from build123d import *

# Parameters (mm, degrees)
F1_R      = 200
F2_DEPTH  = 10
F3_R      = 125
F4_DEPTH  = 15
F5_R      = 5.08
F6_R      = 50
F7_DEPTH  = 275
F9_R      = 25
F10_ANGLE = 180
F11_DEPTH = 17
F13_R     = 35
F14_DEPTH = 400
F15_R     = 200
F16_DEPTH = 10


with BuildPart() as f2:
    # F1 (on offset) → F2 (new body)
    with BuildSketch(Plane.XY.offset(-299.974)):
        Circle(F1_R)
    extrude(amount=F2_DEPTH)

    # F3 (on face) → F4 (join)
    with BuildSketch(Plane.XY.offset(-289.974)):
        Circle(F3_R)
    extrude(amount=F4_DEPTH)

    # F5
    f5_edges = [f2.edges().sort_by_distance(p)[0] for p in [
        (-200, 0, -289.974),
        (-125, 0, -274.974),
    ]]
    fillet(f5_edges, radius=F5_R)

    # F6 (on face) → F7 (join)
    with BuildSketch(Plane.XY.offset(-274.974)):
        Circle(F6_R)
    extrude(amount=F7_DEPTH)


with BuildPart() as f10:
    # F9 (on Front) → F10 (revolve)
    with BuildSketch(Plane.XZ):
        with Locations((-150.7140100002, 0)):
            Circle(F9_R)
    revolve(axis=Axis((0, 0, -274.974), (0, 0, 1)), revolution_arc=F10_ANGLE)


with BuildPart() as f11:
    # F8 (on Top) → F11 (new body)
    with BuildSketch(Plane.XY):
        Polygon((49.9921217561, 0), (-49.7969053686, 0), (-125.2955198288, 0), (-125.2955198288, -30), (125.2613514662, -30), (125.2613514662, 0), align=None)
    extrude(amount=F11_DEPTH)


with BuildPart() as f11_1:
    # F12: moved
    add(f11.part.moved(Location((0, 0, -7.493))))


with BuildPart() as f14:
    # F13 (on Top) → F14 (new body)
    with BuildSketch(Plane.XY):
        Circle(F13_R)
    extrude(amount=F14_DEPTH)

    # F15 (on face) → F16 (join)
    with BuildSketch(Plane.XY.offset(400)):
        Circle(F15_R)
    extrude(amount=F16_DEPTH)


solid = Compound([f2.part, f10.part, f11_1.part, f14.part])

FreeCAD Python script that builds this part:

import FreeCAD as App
import Part
import Sketcher
from FreeCAD import Vector


def edges_at(feature, points):
    """Names of the edges that pass closest to the given points."""
    edges = feature.Shape.Edges
    near = lambda p: min(range(len(edges)), key=lambda i: edges[i].distToShape(Part.Vertex(*p))[0])
    return sorted({f"Edge{near(p) + 1}" for p in points})


def add_polygon(sketch, points):
    """Adds a closed chain of lines whose ends are joined by coincident constraints."""
    first, n = sketch.GeometryCount, len(points)
    for a, b in zip(points, points[1:] + points[:1]):
        sketch.addGeometry(Part.LineSegment(App.Vector(*a, 0), App.Vector(*b, 0)), False)
    for i in range(n):
        sketch.addConstraint(Sketcher.Constraint("Coincident", first + i, 2, first + (i + 1) % n, 1))

doc = App.newDocument("Part")
body = doc.addObject("PartDesign::Body", "Body")

# Sketch on XY plane
sketch1 = body.newObject("Sketcher::SketchObject", "Sketch")
sketch1.AttachmentSupport = (doc.getObject("XY_Plane"), [""])
sketch1.MapMode = "FlatFace"
sketch1.AttachmentOffset = App.Placement(Vector(0, 0, -299.974), App.Rotation())
sketch1.addGeometry(Part.Circle(Vector(0, 0, 0), Vector(0, 0, 1), 200), False)
sketch1.addConstraint([
    Sketcher.Constraint("Coincident", 0, 3, -1, 1),
    Sketcher.Constraint("Diameter", 0, 400.0),
])
pad1 = body.newObject("PartDesign::Pad", "Pad")
pad1.Profile = sketch1
pad1.Length = 10

# Sketch on XY plane
sketch2 = body.newObject("Sketcher::SketchObject", "Sketch001")
sketch2.AttachmentSupport = (doc.getObject("XY_Plane"), [""])
sketch2.MapMode = "FlatFace"
sketch2.AttachmentOffset = App.Placement(Vector(0, 0, -289.974), App.Rotation())
sketch2.addGeometry(Part.Circle(Vector(0, 0, 0), Vector(0, 0, 1), 125), False)
sketch2.addConstraint([
    Sketcher.Constraint("Coincident", 0, 3, -1, 1),
    Sketcher.Constraint("Diameter", 0, 250.0),
])
pad2 = body.newObject("PartDesign::Pad", "Pad001")
pad2.Profile = sketch2
pad2.Length = 15
doc.recompute()

fillet = body.newObject("PartDesign::Fillet", "Fillet")
fillet.Base = (pad2, edges_at(pad2, [(-200, 0, -289.974), (-125, 0, -274.974)]))
fillet.Radius = 5.08

# Sketch on XY plane
sketch3 = body.newObject("Sketcher::SketchObject", "Sketch002")
sketch3.AttachmentSupport = (doc.getObject("XY_Plane"), [""])
sketch3.MapMode = "FlatFace"
sketch3.AttachmentOffset = App.Placement(Vector(0, 0, -274.974), App.Rotation())
sketch3.addGeometry(Part.Circle(Vector(0, 0, 0), Vector(0, 0, 1), 50), False)
sketch3.addConstraint([
    Sketcher.Constraint("Coincident", 0, 3, -1, 1),
    Sketcher.Constraint("Diameter", 0, 100.0),
])
pad3 = body.newObject("PartDesign::Pad", "Pad002")
pad3.Profile = sketch3
pad3.Length = 275
body2 = doc.addObject("PartDesign::Body", "Body001")

# Sketch on XZ plane
sketch4 = body2.newObject("Sketcher::SketchObject", "Sketch003")
sketch4.AttachmentSupport = (doc.getObject("XZ_Plane001"), [""])
sketch4.MapMode = "FlatFace"
sketch4.addGeometry(Part.Circle(Vector(-151, 0, 0), Vector(0, 0, 1), 25), False)
sketch4.addConstraint([
    Sketcher.Constraint("PointOnObject", 0, 3, -1),
    Sketcher.Constraint("Diameter", 0, 50.0),
    Sketcher.Constraint("DistanceX", 0, 3, -1, 1, 150.71401),
])
revolution = body2.newObject("PartDesign::Revolution", "Revolution")
revolution.Profile = sketch4
revolution.ReferenceAxis = (sketch4, ["V_Axis"])
revolution.Angle = 180
body3 = doc.addObject("PartDesign::Body", "Body002")

# Sketch on XY plane
sketch5 = body3.newObject("Sketcher::SketchObject", "Sketch004")
sketch5.AttachmentSupport = (doc.getObject("XY_Plane002"), [""])
sketch5.MapMode = "FlatFace"
add_polygon(sketch5, [(-125, 0), (-125, -30), (125, -30), (125, 0)])  # lines 0-3
sketch5.addConstraint([
    Sketcher.Constraint("Vertical", 0),
    Sketcher.Constraint("Horizontal", 1),
    Sketcher.Constraint("Vertical", 2),
    Sketcher.Constraint("Horizontal", 3),
    Sketcher.Constraint("PointOnObject", 2, 2, -1),
    Sketcher.Constraint("DistanceY", 0, 2, 0, 1, 30.0),
    Sketcher.Constraint("DistanceX", 1, 1, 1, 2, 250.556871),
    Sketcher.Constraint("DistanceX", 0, 2, -1, 1, 125.29552),
])
pad4 = body3.newObject("PartDesign::Pad", "Pad003")
pad4.Profile = sketch5
pad4.Length = 17
body4 = doc.addObject("PartDesign::Body", "Body003")
doc.recompute()

body3.Placement = App.Placement(Vector(0, 0, -7.493), App.Rotation(Vector(0, 0, 1), 0))
boolean = body4.newObject("PartDesign::Boolean", "Boolean")
boolean.Type = "Fuse"
boolean.addObjects([body3])
body5 = doc.addObject("PartDesign::Body", "Body004")

# Sketch on XY plane
sketch6 = body5.newObject("Sketcher::SketchObject", "Sketch005")
sketch6.AttachmentSupport = (doc.getObject("XY_Plane004"), [""])
sketch6.MapMode = "FlatFace"
sketch6.addGeometry(Part.Circle(Vector(0, 0, 0), Vector(0, 0, 1), 35), False)
sketch6.addConstraint([
    Sketcher.Constraint("Coincident", 0, 3, -1, 1),
    Sketcher.Constraint("Diameter", 0, 70.0),
])
pad5 = body5.newObject("PartDesign::Pad", "Pad004")
pad5.Profile = sketch6
pad5.Length = 400

# Sketch on XY plane
sketch7 = body5.newObject("Sketcher::SketchObject", "Sketch006")
sketch7.AttachmentSupport = (doc.getObject("XY_Plane004"), [""])
sketch7.MapMode = "FlatFace"
sketch7.AttachmentOffset = App.Placement(Vector(0, 0, 400), App.Rotation())
sketch7.addGeometry(Part.Circle(Vector(0, 0, 0), Vector(0, 0, 1), 200), False)
sketch7.addConstraint([
    Sketcher.Constraint("Coincident", 0, 3, -1, 1),
    Sketcher.Constraint("Diameter", 0, 400.0),
])
pad6 = body5.newObject("PartDesign::Pad", "Pad005")
pad6.Profile = sketch7
pad6.Length = 10

doc.recompute()
